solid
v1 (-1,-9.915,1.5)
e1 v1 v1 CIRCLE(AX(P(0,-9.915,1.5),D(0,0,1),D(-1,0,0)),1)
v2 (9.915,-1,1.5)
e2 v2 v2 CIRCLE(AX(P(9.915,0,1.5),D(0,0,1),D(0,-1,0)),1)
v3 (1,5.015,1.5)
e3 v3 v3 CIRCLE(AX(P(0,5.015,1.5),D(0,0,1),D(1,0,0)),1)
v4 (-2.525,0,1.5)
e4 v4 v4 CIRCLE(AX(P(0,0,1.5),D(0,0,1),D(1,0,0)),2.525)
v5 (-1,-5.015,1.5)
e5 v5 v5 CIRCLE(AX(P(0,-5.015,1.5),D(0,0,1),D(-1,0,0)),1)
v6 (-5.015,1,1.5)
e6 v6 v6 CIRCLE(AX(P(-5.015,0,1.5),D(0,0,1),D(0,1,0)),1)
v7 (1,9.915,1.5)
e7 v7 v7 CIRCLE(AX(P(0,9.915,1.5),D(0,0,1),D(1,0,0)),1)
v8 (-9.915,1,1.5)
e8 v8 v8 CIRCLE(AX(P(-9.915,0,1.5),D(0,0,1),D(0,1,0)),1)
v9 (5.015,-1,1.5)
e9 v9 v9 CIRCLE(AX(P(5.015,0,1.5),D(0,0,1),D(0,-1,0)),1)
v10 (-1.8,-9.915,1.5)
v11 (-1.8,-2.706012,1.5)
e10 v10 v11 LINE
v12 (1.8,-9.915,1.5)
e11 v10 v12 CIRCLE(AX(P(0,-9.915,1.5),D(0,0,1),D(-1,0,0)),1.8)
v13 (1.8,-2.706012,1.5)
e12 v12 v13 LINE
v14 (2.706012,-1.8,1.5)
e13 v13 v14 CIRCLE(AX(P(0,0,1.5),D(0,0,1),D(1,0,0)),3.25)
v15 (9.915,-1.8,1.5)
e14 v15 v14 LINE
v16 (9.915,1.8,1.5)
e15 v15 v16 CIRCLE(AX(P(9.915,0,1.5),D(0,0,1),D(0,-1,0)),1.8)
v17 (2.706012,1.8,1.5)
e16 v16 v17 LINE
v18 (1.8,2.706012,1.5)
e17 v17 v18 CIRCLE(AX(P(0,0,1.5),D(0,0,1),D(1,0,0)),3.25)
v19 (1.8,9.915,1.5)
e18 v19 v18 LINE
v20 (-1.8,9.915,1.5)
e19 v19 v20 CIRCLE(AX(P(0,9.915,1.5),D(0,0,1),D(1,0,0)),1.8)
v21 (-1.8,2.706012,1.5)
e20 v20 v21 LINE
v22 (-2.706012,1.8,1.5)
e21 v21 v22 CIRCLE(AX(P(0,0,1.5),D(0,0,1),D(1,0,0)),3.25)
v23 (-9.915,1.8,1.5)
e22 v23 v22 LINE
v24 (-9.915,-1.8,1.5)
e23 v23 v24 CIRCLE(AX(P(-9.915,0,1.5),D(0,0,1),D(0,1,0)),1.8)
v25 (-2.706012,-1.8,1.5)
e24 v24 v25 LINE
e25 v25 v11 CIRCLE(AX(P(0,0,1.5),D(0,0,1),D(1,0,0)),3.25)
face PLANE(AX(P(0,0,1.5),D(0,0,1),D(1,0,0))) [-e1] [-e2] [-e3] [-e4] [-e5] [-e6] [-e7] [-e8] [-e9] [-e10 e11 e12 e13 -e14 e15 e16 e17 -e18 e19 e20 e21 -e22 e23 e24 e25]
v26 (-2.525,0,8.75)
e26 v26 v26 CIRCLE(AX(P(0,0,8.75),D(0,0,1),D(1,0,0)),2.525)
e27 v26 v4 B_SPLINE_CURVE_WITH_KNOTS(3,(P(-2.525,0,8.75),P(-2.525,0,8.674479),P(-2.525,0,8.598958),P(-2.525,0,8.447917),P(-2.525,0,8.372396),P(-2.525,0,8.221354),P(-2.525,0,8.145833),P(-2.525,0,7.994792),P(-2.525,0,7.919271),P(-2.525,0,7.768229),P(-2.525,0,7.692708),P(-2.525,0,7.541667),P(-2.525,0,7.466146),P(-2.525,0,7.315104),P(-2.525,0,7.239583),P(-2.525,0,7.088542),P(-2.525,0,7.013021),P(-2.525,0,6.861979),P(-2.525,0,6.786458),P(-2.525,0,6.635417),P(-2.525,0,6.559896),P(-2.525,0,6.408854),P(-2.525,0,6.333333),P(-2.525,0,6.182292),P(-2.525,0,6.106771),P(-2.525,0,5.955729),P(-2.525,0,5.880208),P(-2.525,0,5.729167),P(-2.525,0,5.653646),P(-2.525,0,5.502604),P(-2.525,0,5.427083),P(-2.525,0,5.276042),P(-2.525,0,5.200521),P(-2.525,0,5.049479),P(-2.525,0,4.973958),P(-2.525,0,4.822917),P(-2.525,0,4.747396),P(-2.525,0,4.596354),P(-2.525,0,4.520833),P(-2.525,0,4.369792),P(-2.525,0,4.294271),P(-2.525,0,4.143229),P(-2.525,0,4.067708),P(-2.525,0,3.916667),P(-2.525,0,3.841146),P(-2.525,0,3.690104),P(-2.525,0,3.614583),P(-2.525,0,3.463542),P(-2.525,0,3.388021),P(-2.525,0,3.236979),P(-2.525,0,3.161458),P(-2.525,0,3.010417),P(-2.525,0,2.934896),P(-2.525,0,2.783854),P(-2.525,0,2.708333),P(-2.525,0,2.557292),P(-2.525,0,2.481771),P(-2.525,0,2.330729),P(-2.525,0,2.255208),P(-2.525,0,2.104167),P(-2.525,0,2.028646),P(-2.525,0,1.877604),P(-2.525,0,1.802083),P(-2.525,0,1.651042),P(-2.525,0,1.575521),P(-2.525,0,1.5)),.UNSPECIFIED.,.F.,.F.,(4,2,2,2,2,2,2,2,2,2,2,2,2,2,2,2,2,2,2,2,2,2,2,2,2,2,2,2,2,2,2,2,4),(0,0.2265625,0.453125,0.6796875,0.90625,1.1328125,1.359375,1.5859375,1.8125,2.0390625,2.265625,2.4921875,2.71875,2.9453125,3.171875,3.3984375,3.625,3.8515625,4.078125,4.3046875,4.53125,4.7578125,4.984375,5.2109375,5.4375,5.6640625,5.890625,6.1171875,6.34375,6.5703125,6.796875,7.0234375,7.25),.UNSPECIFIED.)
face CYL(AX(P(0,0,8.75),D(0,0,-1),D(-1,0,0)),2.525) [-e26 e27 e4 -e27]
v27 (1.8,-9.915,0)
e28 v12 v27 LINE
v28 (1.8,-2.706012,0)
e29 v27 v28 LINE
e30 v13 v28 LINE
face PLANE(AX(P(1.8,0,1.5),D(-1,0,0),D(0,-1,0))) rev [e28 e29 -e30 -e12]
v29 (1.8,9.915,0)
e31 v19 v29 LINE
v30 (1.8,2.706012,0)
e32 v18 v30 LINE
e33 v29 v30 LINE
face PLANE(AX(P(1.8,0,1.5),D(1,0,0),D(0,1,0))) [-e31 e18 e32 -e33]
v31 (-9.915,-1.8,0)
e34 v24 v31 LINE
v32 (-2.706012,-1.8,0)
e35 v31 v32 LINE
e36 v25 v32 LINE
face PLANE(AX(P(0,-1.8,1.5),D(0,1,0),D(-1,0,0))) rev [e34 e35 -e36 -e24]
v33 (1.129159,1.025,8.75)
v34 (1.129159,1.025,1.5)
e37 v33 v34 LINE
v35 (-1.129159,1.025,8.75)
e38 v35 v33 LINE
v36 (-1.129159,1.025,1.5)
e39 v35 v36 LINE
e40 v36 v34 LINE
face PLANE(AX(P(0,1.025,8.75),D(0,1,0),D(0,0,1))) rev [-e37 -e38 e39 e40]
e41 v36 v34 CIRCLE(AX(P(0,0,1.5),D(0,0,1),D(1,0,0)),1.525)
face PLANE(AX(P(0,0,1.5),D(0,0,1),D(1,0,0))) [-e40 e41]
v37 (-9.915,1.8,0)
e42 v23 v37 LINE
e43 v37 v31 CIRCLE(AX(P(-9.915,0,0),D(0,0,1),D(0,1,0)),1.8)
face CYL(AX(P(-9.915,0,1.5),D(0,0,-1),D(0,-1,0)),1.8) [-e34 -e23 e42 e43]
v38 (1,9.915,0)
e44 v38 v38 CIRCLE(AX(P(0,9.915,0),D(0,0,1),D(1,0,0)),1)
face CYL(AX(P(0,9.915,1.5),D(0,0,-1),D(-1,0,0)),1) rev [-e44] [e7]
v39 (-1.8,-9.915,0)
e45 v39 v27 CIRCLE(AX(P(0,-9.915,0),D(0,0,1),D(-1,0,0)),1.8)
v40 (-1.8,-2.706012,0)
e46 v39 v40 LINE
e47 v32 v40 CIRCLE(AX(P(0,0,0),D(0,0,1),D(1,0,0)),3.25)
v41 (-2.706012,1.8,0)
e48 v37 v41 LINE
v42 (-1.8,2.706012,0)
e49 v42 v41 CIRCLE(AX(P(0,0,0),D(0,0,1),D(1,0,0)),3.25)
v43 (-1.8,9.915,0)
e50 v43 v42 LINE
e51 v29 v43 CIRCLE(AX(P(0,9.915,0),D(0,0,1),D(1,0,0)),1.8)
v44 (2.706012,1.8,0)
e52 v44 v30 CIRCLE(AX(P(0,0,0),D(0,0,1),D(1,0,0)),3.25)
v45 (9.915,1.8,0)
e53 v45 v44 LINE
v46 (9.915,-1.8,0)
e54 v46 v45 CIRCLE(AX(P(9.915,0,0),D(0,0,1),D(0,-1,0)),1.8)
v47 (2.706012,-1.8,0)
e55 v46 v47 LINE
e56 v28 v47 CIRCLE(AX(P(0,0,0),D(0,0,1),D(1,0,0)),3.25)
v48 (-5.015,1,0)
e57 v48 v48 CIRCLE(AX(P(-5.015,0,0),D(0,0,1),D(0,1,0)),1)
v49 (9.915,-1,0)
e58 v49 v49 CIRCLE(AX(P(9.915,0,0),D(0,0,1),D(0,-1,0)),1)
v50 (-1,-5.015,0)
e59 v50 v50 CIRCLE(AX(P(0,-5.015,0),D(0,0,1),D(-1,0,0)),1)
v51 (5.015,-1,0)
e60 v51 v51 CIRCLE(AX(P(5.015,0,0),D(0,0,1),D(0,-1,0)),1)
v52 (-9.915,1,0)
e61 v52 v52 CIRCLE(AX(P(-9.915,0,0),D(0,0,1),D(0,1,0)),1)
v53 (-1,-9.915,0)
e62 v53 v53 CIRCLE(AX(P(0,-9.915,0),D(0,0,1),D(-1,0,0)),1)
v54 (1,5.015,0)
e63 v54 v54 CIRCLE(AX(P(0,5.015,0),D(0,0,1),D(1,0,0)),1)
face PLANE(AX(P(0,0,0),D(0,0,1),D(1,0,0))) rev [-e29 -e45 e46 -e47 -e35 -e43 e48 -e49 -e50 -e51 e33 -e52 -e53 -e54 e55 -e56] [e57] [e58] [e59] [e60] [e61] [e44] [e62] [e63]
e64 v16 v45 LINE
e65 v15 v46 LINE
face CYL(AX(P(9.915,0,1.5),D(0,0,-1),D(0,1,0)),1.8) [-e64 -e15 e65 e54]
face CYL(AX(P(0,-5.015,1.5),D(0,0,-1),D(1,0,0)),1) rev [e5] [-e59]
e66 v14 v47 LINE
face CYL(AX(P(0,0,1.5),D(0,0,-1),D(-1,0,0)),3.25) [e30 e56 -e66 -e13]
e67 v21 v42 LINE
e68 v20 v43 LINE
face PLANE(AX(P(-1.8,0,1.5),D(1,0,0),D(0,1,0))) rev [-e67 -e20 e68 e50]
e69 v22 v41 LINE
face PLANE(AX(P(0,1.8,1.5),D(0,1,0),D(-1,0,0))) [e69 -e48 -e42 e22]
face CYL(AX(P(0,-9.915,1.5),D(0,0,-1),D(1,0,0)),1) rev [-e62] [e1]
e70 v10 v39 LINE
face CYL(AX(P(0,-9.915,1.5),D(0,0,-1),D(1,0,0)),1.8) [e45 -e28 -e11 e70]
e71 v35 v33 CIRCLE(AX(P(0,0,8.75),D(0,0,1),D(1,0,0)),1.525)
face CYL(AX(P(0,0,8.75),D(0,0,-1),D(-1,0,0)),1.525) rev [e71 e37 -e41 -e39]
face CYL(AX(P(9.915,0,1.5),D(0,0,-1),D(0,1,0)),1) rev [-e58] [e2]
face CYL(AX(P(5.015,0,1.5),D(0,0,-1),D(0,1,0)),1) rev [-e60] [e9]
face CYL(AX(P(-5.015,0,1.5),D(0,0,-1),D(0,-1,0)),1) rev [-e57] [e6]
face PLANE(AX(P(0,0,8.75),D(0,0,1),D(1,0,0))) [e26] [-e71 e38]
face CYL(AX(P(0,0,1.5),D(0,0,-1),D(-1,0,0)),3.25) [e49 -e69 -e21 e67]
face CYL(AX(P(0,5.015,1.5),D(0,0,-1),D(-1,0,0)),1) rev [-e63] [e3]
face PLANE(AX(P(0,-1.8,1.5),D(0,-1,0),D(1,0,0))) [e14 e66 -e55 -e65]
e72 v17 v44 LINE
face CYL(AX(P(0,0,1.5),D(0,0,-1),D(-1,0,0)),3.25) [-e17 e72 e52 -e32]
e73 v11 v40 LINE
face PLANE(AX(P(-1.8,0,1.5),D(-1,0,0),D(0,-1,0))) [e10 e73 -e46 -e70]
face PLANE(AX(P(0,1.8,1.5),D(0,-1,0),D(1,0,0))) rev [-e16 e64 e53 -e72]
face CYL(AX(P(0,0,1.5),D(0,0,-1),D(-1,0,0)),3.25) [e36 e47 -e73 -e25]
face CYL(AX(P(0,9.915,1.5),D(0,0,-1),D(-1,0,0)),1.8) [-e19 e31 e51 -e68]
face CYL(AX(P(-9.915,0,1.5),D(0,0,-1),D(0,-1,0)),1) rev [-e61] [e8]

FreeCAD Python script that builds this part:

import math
import FreeCAD as App
import Part
import Sketcher
from FreeCAD import Vector

doc = App.newDocument("Part")
body = doc.addObject("PartDesign::Body", "Body")

sketch1 = body.newObject("Sketcher::SketchObject", "Sketch")
sketch1.AttachmentSupport = (doc.getObject("XY_Plane"), [""])
sketch1.MapMode = "FlatFace"
sketch1.addGeometry([
    Part.LineSegment(Vector(1.8, 2.7, 0), Vector(1.8, 9.9, 0)),
    Part.ArcOfCircle(Part.Circle(Vector(0, 9.9, 0), Vector(0, 0, 1), 1.8), math.radians(0), math.radians(180)),
    Part.LineSegment(Vector(-1.8, 9.9, 0), Vector(-1.8, 2.7, 0)),
    Part.ArcOfCircle(Part.Circle(Vector(0, 0, 0), Vector(0, 0, 1), 3.2), math.radians(124), math.radians(416)),
    Part.Circle(Vector(0, 5, 0), Vector(0, 0, 1), 1),
    Part.Circle(Vector(0, 9.9, 0), Vector(0, 0, 1), 1),
], False)
sketch1.addConstraint([
    Sketcher.Constraint("Tangent", 0, 2, 1, 1),
    Sketcher.Constraint("Tangent", 1, 2, 2, 1),
    Sketcher.Constraint("Coincident", 2, 2, 3, 1),
    Sketcher.Constraint("Coincident", 3, 2, 0, 1),
    Sketcher.Constraint("Vertical", 0),
    Sketcher.Constraint("Vertical", 2),
    Sketcher.Constraint("Coincident", 3, 3, -1, 1),
    Sketcher.Constraint("Coincident", 5, 3, 1, 3),
    Sketcher.Constraint("Equal", 4, 5),
    Sketcher.Constraint("PointOnObject", 1, 3, -2),
    Sketcher.Constraint("PointOnObject", 4, 3, -2),
    Sketcher.Constraint("Diameter", 4, 2.0),
    Sketcher.Constraint("Radius", 1, 1.8),
    Sketcher.Constraint("Radius", 3, 3.25),
    Sketcher.Constraint("DistanceY", 4, 3, 1, 3, 4.9),
    Sketcher.Constraint("DistanceY", -1, 1, 1, 3, 9.915),
])
pad1 = body.newObject("PartDesign::Pad", "Pad")
pad1.Profile = sketch1
pad1.Length = 1.5
doc.recompute()

polarpattern = body.newObject("PartDesign::PolarPattern", "PolarPattern")
polarpattern.Originals = [pad1]
polarpattern.Axis = (doc.getObject("Z_Axis"), [""])
polarpattern.Angle = 360
polarpattern.Occurrences = 4
body.Tip = polarpattern

sketch2 = body.newObject("Sketcher::SketchObject", "Sketch001")
sketch2.AttachmentSupport = (doc.getObject("XY_Plane"), [""])
sketch2.MapMode = "FlatFace"
sketch2.AttachmentOffset = App.Placement(Vector(0, 0, 1.5), App.Rotation())
sketch2.addGeometry([
    Part.Circle(Vector(0, 0, 0), Vector(0, 0, 1), 2.5),
    Part.ArcOfCircle(Part.Circle(Vector(0, 0, 0), Vector(0, 0, 1), 1.5), math.radians(138), math.radians(402)),
    Part.LineSegment(Vector(-1.1, 1, 0), Vector(1.1, 1, 0)),
], False)
sketch2.addConstraint([
    Sketcher.Constraint("Coincident", 1, 1, 2, 1),
    Sketcher.Constraint("Coincident", 2, 2, 1, 2),
    Sketcher.Constraint("Horizontal", 2),
    Sketcher.Constraint("Coincident", 0, 3, -1, 1),
    Sketcher.Constraint("Coincident", 1, 3, -1, 1),
    Sketcher.Constraint("Diameter", 0, 5.05),
    Sketcher.Constraint("Radius", 1, 1.525),
    Sketcher.Constraint("DistanceY", -1, 1, 1, 1, 1.025),
])
pad2 = body.newObject("PartDesign::Pad", "Pad001")
pad2.Profile = sketch2
pad2.Length = 7.25

doc.recompute()
